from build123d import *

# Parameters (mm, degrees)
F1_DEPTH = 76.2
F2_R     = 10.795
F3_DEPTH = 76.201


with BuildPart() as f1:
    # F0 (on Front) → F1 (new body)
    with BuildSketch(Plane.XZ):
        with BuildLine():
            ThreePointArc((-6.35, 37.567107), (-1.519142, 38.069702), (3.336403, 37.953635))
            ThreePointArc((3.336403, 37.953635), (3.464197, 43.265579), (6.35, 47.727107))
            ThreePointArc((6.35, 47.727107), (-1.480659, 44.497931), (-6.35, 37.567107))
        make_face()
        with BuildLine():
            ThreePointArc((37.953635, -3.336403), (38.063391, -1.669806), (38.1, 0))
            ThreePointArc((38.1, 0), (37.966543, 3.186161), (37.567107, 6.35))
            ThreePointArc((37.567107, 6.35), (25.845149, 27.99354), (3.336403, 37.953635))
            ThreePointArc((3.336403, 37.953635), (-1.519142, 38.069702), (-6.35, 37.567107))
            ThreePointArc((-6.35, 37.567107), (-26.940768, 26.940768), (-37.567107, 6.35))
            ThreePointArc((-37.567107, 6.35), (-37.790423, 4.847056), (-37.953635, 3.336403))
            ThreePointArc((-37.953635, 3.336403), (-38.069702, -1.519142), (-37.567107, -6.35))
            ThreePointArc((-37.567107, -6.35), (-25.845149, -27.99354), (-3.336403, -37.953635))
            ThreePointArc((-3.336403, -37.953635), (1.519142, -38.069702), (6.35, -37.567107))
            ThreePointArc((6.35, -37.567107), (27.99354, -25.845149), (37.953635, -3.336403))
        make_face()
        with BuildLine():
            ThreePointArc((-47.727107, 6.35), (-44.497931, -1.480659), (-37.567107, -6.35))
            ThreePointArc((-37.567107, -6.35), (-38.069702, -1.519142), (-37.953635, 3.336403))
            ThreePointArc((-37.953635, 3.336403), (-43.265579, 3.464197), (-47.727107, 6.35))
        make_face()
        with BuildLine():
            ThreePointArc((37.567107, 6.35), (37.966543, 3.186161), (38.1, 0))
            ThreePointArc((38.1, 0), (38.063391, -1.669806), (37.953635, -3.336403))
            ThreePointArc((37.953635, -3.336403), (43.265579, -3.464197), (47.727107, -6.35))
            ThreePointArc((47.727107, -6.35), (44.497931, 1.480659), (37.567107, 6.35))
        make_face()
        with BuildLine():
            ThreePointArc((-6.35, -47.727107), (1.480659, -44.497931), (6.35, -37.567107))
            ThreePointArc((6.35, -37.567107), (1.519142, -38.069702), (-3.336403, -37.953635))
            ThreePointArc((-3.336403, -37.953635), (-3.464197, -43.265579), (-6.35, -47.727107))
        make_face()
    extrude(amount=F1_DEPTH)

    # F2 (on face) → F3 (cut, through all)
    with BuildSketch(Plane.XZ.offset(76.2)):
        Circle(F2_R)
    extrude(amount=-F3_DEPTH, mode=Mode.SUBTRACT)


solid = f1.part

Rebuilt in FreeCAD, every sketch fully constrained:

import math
import FreeCAD as App
import Part
import Sketcher

V = App.Vector
Q = App.Units.Quantity

doc = App.newDocument("Part")
body = doc.addObject("PartDesign::Body", "Body")

# Sketch on XZ plane
sketch1 = body.newObject("Sketcher::SketchObject", "Sketch")
sketch1.AttachmentSupport = (doc.getObject("XZ_Plane"), [""])
sketch1.MapMode = "FlatFace"
sketch1.addGeometry([
    Part.ArcOfCircle(Part.Circle(V(12.8, 40.4, 0), V(0, 0, 1), 9.8), math.radians(131), math.radians(194)),  # 0
    Part.ArcOfCircle(Part.Circle(V(8, 32.7, 0), V(0, 0, 1), 15.1), math.radians(96), math.radians(161)),  # 1
    Part.ArcOfCircle(Part.Circle(V(0, 0, 0), V(0, 0, 1), 38.1), math.radians(100), math.radians(170)),  # 2
    Part.ArcOfCircle(Part.Circle(V(0, 0, 0), V(0, 0, 1), 38.1), math.radians(170.41), math.radians(174.98)),  # 3
    Part.ArcOfCircle(Part.Circle(V(-40.4, 12.8, 0), V(0, 0, 1), 9.8), math.radians(-139), math.radians(-76)),  # 4
    Part.ArcOfCircle(Part.Circle(V(-32.7, 8, 0), V(0, 0, 1), 15.1), math.radians(-174), math.radians(-109)),  # 5
    Part.ArcOfCircle(Part.Circle(V(0, 0, 0), V(0, 0, 1), 38.1), math.radians(-170), math.radians(-95)),  # 6
    Part.ArcOfCircle(Part.Circle(V(-12.8, -40.4, 0), V(0, 0, 1), 9.8), math.radians(-49), math.radians(14)),  # 7
    Part.ArcOfCircle(Part.Circle(V(-8, -32.7, 0), V(0, 0, 1), 15.1), math.radians(-84), math.radians(-19)),  # 8
    Part.ArcOfCircle(Part.Circle(V(0, 0, 0), V(0, 0, 1), 38.1), math.radians(-80), math.radians(-5)),  # 9
    Part.ArcOfCircle(Part.Circle(V(40.4, -12.8, 0), V(0, 0, 1), 9.8), math.radians(41), math.radians(104)),  # 10
    Part.ArcOfCircle(Part.Circle(V(32.7, -8, 0), V(0, 0, 1), 15.1), math.radians(6), math.radians(71)),  # 11
    Part.ArcOfCircle(Part.Circle(V(0, 0, 0), V(0, 0, 1), 38.1), math.radians(10), math.radians(85)),  # 12
], False)
sketch1.addConstraint([
    Sketcher.Constraint("Coincident", 0, 1, 1, 1),
    Sketcher.Constraint("Coincident", 1, 2, 2, 1),
    Sketcher.Constraint("Tangent", 2, 2, 3, 1),
    Sketcher.Constraint("Coincident", 3, 2, 4, 2),
    Sketcher.Constraint("Coincident", 4, 1, 5, 1),
    Sketcher.Constraint("Coincident", 5, 2, 6, 1),
    Sketcher.Constraint("Coincident", 6, 2, 7, 2),
    Sketcher.Constraint("Coincident", 7, 1, 8, 1),
    Sketcher.Constraint("Coincident", 8, 2, 9, 1),
    Sketcher.Constraint("Coincident", 9, 2, 10, 2),
    Sketcher.Constraint("Coincident", 10, 1, 11, 1),
    Sketcher.Constraint("Coincident", 11, 2, 12, 1),
    Sketcher.Constraint("Coincident", 12, 2, 0, 2),
    Sketcher.Constraint("Coincident", 2, 3, -1, 1),
    Sketcher.Constraint("Coincident", 6, 3, -1, 1),
    Sketcher.Constraint("Coincident", 9, 3, -1, 1),
    Sketcher.Constraint("Coincident", 12, 3, -1, 1),
    Sketcher.Constraint("Equal", 0, 4),
    Sketcher.Constraint("Equal", 1, 5),
    Sketcher.Constraint("Equal", 4, 7),
    Sketcher.Constraint("Equal", 5, 8),
    Sketcher.Constraint("Equal", 6, 9),
    Sketcher.Constraint("Equal", 7, 10),
    Sketcher.Constraint("Equal", 8, 11),
    Sketcher.Constraint("Equal", 9, 12),
    Sketcher.Constraint("Symmetric", 0, 3, 7, 3, -1, 1),
    Sketcher.Constraint("Symmetric", 1, 3, 8, 3, -1, 1),
    Sketcher.Constraint("Symmetric", 4, 3, 10, 3, -1, 1),
    Sketcher.Constraint("Symmetric", 5, 3, 11, 3, -1, 1),
    Sketcher.Constraint("Symmetric", 2, 2, 11, 2, -2),
    Sketcher.Constraint("Horizontal", 2, 2, 4, 1),
    Sketcher.Constraint("Vertical", 1, 2, 7, 1),
    Sketcher.Constraint("Radius", 2, Q("1.5000002 in")),
    Sketcher.Constraint("DistanceX", 1, 2, 0, 1, Q("0.5 in")),
    Sketcher.Constraint("DistanceY", 1, 2, 0, 1, Q("0.4 in")),
    Sketcher.Constraint("DistanceX", 4, 1, 2, 2, Q("0.4 in")),
    Sketcher.Constraint("DistanceY", 5, 2, 2, 2, Q("0.5 in")),
    Sketcher.Constraint("Radius", 0, Q("9.78229 mm")),
    Sketcher.Constraint("Radius", 3, Q("38.099821 mm")),
    Sketcher.Constraint("Radius", 1, Q("15.135108 mm")),
    Sketcher.Constraint("DistanceX", 4, 3, 3, 3, Q("40.383 mm")),
    Sketcher.Constraint("DistanceX", -1, 1, 0, 3, Q("12.812189 mm")),
])
pad1 = body.newObject("PartDesign::Pad", "Pad")
pad1.Profile = sketch1
pad1.Length = Q("3 in")

# Sketch on XZ plane
sketch2 = body.newObject("Sketcher::SketchObject", "Sketch001")
sketch2.AttachmentSupport = (doc.getObject("XZ_Plane"), [""])
sketch2.MapMode = "FlatFace"
sketch2.AttachmentOffset = App.Placement(V(0, 0, 3 * 25.4), App.Rotation())
sketch2.addGeometry(Part.Circle(V(0, 0, 0), V(0, 0, 1), 11), False)
sketch2.addConstraint([
    Sketcher.Constraint("Coincident", 0, 3, -1, 1),
    Sketcher.Constraint("Diameter", 0, Q("0.85 in")),
])
pocket1 = body.newObject("PartDesign::Pocket", "Pocket")
pocket1.Profile = sketch2
pocket1.Type = "ThroughAll"

doc.recompute()
